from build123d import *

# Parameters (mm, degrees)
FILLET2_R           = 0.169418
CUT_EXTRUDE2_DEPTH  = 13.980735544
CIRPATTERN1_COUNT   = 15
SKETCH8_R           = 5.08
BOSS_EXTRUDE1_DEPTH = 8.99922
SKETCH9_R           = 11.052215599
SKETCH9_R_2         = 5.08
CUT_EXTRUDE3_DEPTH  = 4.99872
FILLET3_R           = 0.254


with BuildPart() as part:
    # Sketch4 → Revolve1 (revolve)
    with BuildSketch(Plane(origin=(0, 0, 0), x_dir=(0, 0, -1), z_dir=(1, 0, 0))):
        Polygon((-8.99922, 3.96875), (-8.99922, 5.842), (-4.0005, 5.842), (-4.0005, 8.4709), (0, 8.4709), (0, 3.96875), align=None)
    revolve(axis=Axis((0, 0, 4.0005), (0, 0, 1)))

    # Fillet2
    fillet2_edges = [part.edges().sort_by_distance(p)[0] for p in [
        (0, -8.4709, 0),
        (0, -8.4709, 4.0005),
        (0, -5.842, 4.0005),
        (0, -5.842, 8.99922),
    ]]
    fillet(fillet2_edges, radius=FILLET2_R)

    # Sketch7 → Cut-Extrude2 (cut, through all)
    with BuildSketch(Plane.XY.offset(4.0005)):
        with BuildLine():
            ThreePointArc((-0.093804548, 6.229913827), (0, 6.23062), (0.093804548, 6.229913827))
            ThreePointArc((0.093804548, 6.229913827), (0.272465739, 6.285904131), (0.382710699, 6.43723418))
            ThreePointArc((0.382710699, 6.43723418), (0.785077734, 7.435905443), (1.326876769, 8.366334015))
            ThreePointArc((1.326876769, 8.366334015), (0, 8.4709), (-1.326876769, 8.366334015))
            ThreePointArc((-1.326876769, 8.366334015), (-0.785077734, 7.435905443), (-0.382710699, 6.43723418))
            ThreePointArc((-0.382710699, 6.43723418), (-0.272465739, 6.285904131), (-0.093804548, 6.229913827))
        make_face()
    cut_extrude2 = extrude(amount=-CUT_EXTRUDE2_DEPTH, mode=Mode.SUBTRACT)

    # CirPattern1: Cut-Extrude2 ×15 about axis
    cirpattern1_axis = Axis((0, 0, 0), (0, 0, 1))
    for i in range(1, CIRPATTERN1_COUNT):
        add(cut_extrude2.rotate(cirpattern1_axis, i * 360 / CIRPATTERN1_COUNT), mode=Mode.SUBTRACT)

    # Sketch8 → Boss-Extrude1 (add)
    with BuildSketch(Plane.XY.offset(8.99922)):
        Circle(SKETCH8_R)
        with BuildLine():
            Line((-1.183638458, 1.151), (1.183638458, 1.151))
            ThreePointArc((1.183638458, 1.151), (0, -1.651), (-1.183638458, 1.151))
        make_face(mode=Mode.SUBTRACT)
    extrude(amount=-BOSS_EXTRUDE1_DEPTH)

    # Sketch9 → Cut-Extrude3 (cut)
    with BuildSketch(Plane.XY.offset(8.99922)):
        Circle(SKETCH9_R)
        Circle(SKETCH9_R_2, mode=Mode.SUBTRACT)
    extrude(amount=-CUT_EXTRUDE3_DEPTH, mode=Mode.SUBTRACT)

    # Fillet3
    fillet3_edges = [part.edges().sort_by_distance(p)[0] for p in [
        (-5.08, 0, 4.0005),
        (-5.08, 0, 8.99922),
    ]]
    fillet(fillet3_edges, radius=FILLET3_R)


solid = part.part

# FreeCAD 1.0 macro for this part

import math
import FreeCAD as App
import Part
import Sketcher
from FreeCAD import Vector
Q = App.Units.Quantity


def edges_at(feature, points):
    """Names of the edges that pass closest to the given points."""
    edges = feature.Shape.Edges
    near = lambda p: min(range(len(edges)), key=lambda i: edges[i].distToShape(Part.Vertex(*p))[0])
    return sorted({f"Edge{near(p) + 1}" for p in points})

doc = App.newDocument("Part")
body = doc.addObject("PartDesign::Body", "Body")

sketch1 = doc.addObject("Sketcher::SketchObject", "Sketch")
body.addObject(sketch1)
sketch1.AttachmentSupport = (doc.YZ_Plane, [""])
sketch1.MapMode = "FlatFace"
sketch1.addGeometry([
    Part.LineSegment(Vector(5.8, 9, 0), Vector(4, 9, 0)),
    Part.LineSegment(Vector(4, 9, 0), Vector(4, 0, 0)),
    Part.LineSegment(Vector(4, 0, 0), Vector(8.5, 0, 0)),
    Part.LineSegment(Vector(8.5, 0, 0), Vector(8.5, 4, 0)),
    Part.LineSegment(Vector(8.5, 4, 0), Vector(5.8, 4, 0)),
    Part.LineSegment(Vector(5.8, 4, 0), Vector(5.8, 9, 0)),
], False)
sketch1.addConstraint([
    Sketcher.Constraint("Coincident", 0, 2, 1, 1),
    Sketcher.Constraint("Coincident", 1, 2, 2, 1),
    Sketcher.Constraint("Coincident", 2, 2, 3, 1),
    Sketcher.Constraint("Coincident", 3, 2, 4, 1),
    Sketcher.Constraint("Coincident", 4, 2, 5, 1),
    Sketcher.Constraint("Coincident", 5, 2, 0, 1),
    Sketcher.Constraint("Horizontal", 0),
    Sketcher.Constraint("Vertical", 1),
    Sketcher.Constraint("Horizontal", 2),
    Sketcher.Constraint("Vertical", 3),
    Sketcher.Constraint("Horizontal", 4),
    Sketcher.Constraint("Vertical", 5),
    Sketcher.Constraint("PointOnObject", 1, 2, -1),
    Sketcher.Constraint("DistanceX", -1, 1, 4, 2, Q("0.23 in")),
    Sketcher.Constraint("DistanceX", 4, 2, 4, 1, Q("0.1035 in")),
    Sketcher.Constraint("DistanceY", 1, 2, 1, 1, Q("0.3543 in")),
    Sketcher.Constraint("DistanceY", 3, 1, 3, 2, Q("0.1575 in")),
    Sketcher.Constraint("DistanceX", -1, 1, 0, 2, Q("0.15625 in")),
])
revolution = doc.addObject("PartDesign::Revolution", "Revolution")
body.addObject(revolution)
revolution.Profile = sketch1
revolution.ReferenceAxis = (sketch1, ["V_Axis"])
revolution.Angle = 360
doc.recompute()

fillet = doc.addObject("PartDesign::Fillet", "Fillet")
body.addObject(fillet)
fillet.Base = (revolution, edges_at(revolution, [
    (0, -8.471, 0),
    (0, -8.471, 4),
    (0, -5.842, 4),
    (0, -5.842, 8.999),
]))
fillet.Radius = 0.169418

sketch2 = doc.addObject("Sketcher::SketchObject", "Sketch001")
body.addObject(sketch2)
sketch2.AttachmentSupport = (doc.XY_Plane, [""])
sketch2.MapMode = "FlatFace"
sketch2.AttachmentOffset = App.Placement(Vector(0, 0, 0.1575 * 25.4), App.Rotation())
sketch2.addGeometry([
    Part.ArcOfCircle(Part.Circle(Vector(0, 0, 0), Vector(0, 0, 1), 6.23), math.radians(89.14), math.radians(90.86)),
    Part.ArcOfCircle(Part.Circle(Vector(0.1, 6.53, 0), Vector(0, 0, 1), 0.3), math.radians(-91), math.radians(-18)),
    Part.ArcOfCircle(Part.Circle(Vector(7.49, 4.15, 0), Vector(0, 0, 1), 7.47), math.radians(145.65), math.radians(162.19)),
    Part.ArcOfCircle(Part.Circle(Vector(0, 0, 0), Vector(0, 0, 1), 8.47), math.radians(80.99), math.radians(99.01)),
    Part.ArcOfCircle(Part.Circle(Vector(-7.49, 4.15, 0), Vector(0, 0, 1), 7.47), math.radians(17.81), math.radians(34.35)),
    Part.ArcOfCircle(Part.Circle(Vector(-0.1, 6.53, 0), Vector(0, 0, 1), 0.3), math.radians(-162), math.radians(-89)),
], False)
sketch2.addConstraint([
    Sketcher.Constraint("Tangent", 0, 1, 1, 1),
    Sketcher.Constraint("Tangent", 1, 2, 2, 2),
    Sketcher.Constraint("Coincident", 2, 1, 3, 1),
    Sketcher.Constraint("Coincident", 3, 2, 4, 2),
    Sketcher.Constraint("Tangent", 4, 1, 5, 1),
    Sketcher.Constraint("Tangent", 5, 2, 0, 2),
    Sketcher.Constraint("Coincident", 0, 3, -1, 1),
    Sketcher.Constraint("Coincident", 3, 3, -1, 1),
    Sketcher.Constraint("Equal", 2, 4),
    Sketcher.Constraint("Equal", 1, 5),
    Sketcher.Constraint("Symmetric", 2, 3, 4, 3, -2),
    Sketcher.Constraint("Radius", 2, Q("0.294 in")),
    Sketcher.Constraint("Radius", 0, Q("0.2453 in")),
    Sketcher.Constraint("Radius", 3, Q("0.3335 in")),
    Sketcher.Constraint("Radius", 1, Q("0.298726 mm")),
    Sketcher.Constraint("DistanceX", -1, 1, 1, 3, Q("0.098302 mm")),
    Sketcher.Constraint("DistanceY", 2, 3, 0, 1, Q("2.076802 mm")),
])
pocket1 = doc.addObject("PartDesign::Pocket", "Pocket")
body.addObject(pocket1)
pocket1.Profile = sketch2
pocket1.Type = "ThroughAll"
doc.recompute()

polarpattern = doc.addObject("PartDesign::PolarPattern", "PolarPattern")
body.addObject(polarpattern)
polarpattern.Originals = [pocket1]
polarpattern.Axis = (doc.Z_Axis, [""])
polarpattern.Angle = 360
polarpattern.Occurrences = 15
body.Tip = polarpattern

sketch3 = doc.addObject("Sketcher::SketchObject", "Sketch002")
body.addObject(sketch3)
sketch3.AttachmentSupport = (doc.XY_Plane, [""])
sketch3.MapMode = "FlatFace"
sketch3.AttachmentOffset = App.Placement(Vector(0, 0, 0.3543 * 25.4), App.Rotation())
sketch3.addGeometry([
    Part.Circle(Vector(0, 0, 0), Vector(0, 0, 1), 5.1),
    Part.ArcOfCircle(Part.Circle(Vector(0, 0, 0), Vector(0, 0, 1), 1.7), math.radians(136), math.radians(404)),
    Part.LineSegment(Vector(-1.2, 1.2, 0), Vector(1.2, 1.2, 0)),
], False)
sketch3.addConstraint([
    Sketcher.Constraint("Coincident", 1, 1, 2, 1),
    Sketcher.Constraint("Coincident", 2, 2, 1, 2),
    Sketcher.Constraint("Horizontal", 2),
    Sketcher.Constraint("Coincident", 0, 3, -1, 1),
    Sketcher.Constraint("Coincident", 1, 3, -1, 1),
    Sketcher.Constraint("Diameter", 0, Q("0.4 in")),
    Sketcher.Constraint("Radius", 1, Q("0.065 in")),
    Sketcher.Constraint("DistanceX", 2, 1, 2, 2, Q("0.0931999 in")),
])
pad1 = doc.addObject("PartDesign::Pad", "Pad")
body.addObject(pad1)
pad1.Profile = sketch3
pad1.Length = Q("0.3543 in")
pad1.Reversed = True

sketch4 = doc.addObject("Sketcher::SketchObject", "Sketch003")
body.addObject(sketch4)
sketch4.AttachmentSupport = (doc.XY_Plane, [""])
sketch4.MapMode = "FlatFace"
sketch4.AttachmentOffset = App.Placement(Vector(0, 0, 0.3543 * 25.4), App.Rotation())
sketch4.addGeometry([
    Part.Circle(Vector(0, 0, 0), Vector(0, 0, 1), 11),
    Part.Circle(Vector(0, 0, 0), Vector(0, 0, 1), 5),
], False)
sketch4.addConstraint([
    Sketcher.Constraint("Coincident", 0, 3, -1, 1),
    Sketcher.Constraint("Coincident", 1, 3, -1, 1),
    Sketcher.Constraint("Diameter", 1, Q("0.4 in")),
    Sketcher.Constraint("Diameter", 0, Q("22.104431 mm")),
])
pocket2 = doc.addObject("PartDesign::Pocket", "Pocket001")
body.addObject(pocket2)
pocket2.Profile = sketch4
pocket2.Length = Q("0.1968 in")
doc.recompute()

fillet2 = doc.addObject("PartDesign::Fillet", "Fillet001")
body.addObject(fillet2)
fillet2.Base = (pocket2, edges_at(pocket2, [(-5.08, 0, 4), (-5.08, 0, 8.999)]))
fillet2.Radius = Q("0.01 in")

doc.recompute()
